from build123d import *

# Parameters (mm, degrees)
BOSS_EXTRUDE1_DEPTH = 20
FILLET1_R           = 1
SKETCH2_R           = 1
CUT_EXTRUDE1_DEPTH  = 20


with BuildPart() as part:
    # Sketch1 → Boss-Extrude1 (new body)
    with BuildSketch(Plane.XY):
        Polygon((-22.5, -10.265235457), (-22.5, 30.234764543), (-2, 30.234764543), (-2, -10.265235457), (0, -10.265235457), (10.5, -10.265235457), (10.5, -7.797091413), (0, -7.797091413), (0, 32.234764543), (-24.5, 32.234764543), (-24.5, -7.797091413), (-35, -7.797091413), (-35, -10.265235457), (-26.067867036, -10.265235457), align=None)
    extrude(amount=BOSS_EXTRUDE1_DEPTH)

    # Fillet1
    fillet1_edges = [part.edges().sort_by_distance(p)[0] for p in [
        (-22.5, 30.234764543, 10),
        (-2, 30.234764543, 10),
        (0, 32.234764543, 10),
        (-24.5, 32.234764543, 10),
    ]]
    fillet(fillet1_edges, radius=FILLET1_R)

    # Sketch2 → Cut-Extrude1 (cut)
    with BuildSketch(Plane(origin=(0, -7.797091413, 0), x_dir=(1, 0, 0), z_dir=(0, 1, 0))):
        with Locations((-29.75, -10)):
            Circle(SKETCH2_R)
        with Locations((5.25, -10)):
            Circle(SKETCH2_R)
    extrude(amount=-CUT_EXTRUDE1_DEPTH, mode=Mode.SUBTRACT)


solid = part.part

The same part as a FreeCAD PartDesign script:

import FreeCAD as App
import Part
import Sketcher

V = App.Vector


def edges_at(feature, points):
    """Names of the edges that pass closest to the given points."""
    edges = feature.Shape.Edges
    near = lambda p: min(range(len(edges)), key=lambda i: edges[i].distToShape(Part.Vertex(*p))[0])
    return sorted({f"Edge{near(p) + 1}" for p in points})


def add_polygon(sketch, points):
    """Adds a closed chain of lines whose ends are joined by coincident constraints."""
    first, n = sketch.GeometryCount, len(points)
    for a, b in zip(points, points[1:] + points[:1]):
        sketch.addGeometry(Part.LineSegment(App.Vector(*a, 0), App.Vector(*b, 0)), False)
    for i in range(n):
        sketch.addConstraint(Sketcher.Constraint("Coincident", first + i, 2, first + (i + 1) % n, 1))

doc = App.newDocument("Part")
body = doc.addObject("PartDesign::Body", "Body")

# Sketch on XY plane
sketch1 = body.newObject("Sketcher::SketchObject", "Sketch")
sketch1.AttachmentSupport = (doc.getObject("XY_Plane"), [""])
sketch1.MapMode = "FlatFace"
add_polygon(sketch1, [(-22.5, -10.265235), (-22.5, 30.234765), (-2, 30.234765), (-2, -10.265235), (10.5, -10.265235), (10.5, -7.797091), (0, -7.797091), (0, 32.234765), (-24.5, 32.234765), (-24.5, -7.797091), (-35, -7.797091), (-35, -10.265235)])  # lines 0-11
sketch1.addConstraint([
    Sketcher.Constraint("Vertical", 0),
    Sketcher.Constraint("Horizontal", 1),
    Sketcher.Constraint("Vertical", 2),
    Sketcher.Constraint("Horizontal", 3),
    Sketcher.Constraint("Vertical", 4),
    Sketcher.Constraint("Horizontal", 5),
    Sketcher.Constraint("Vertical", 6),
    Sketcher.Constraint("Horizontal", 7),
    Sketcher.Constraint("Vertical", 8),
    Sketcher.Constraint("Horizontal", 9),
    Sketcher.Constraint("Vertical", 10),
    Sketcher.Constraint("Horizontal", 11),
    Sketcher.Constraint("PointOnObject", 5, 2, -2),
    Sketcher.Constraint("Horizontal", 5, 2, 8, 2),
    Sketcher.Constraint("Horizontal", 3, 2, 10, 2),
    Sketcher.Constraint("Equal", 5, 9),
    Sketcher.Constraint("Equal", 3, 11),
    Sketcher.Constraint("DistanceX", 1, 1, 1, 2, 20.5),
    Sketcher.Constraint("DistanceX", 3, 1, 3, 2, 12.5),
    Sketcher.Constraint("DistanceX", 5, 2, 5, 1, 10.5),
    Sketcher.Constraint("DistanceY", 0, 1, 0, 2, 40.5),
    Sketcher.Constraint("DistanceY", 1, 2, 6, 2, 2.0),
    Sketcher.Constraint("DistanceY", 4, 1, 4, 2, 2.468144),
    Sketcher.Constraint("DistanceY", 4, 2, -1, 1, 7.797091),
])
pad1 = body.newObject("PartDesign::Pad", "Pad")
pad1.Profile = sketch1
pad1.Length = 20
doc.recompute()

fillet = body.newObject("PartDesign::Fillet", "Fillet")
fillet.Base = (pad1, edges_at(pad1, [
    (-22.5, 30.235, 10),
    (-2, 30.235, 10),
    (0, 32.235, 10),
    (-24.5, 32.235, 10),
]))
fillet.Radius = 1

# Sketch on XZ plane
sketch2 = body.newObject("Sketcher::SketchObject", "Sketch001")
sketch2.AttachmentSupport = (doc.getObject("XZ_Plane"), [""])
sketch2.MapMode = "FlatFace"
sketch2.AttachmentOffset = App.Placement(V(0, 0, 7.797091), App.Rotation())
sketch2.addGeometry([
    Part.Circle(V(-29.75, 10, 0), V(0, 0, 1), 1),
    Part.Circle(V(5.25, 10, 0), V(0, 0, 1), 1),
], False)
sketch2.addConstraint([
    Sketcher.Constraint("Equal", 0, 1),
    Sketcher.Constraint("Horizontal", 0, 3, 1, 3),
    Sketcher.Constraint("Diameter", 0, 2.0),
    Sketcher.Constraint("DistanceY", -1, 1, 0, 3, 10.0),
    Sketcher.Constraint("DistanceX", 0, 3, 1, 3, 35.0),
    Sketcher.Constraint("DistanceX", 0, 3, -1, 1, 29.75),
])
pocket1 = body.newObject("PartDesign::Pocket", "Pocket")
pocket1.Profile = sketch2
pocket1.Length = 20
pocket1.Reversed = True

doc.recompute()
